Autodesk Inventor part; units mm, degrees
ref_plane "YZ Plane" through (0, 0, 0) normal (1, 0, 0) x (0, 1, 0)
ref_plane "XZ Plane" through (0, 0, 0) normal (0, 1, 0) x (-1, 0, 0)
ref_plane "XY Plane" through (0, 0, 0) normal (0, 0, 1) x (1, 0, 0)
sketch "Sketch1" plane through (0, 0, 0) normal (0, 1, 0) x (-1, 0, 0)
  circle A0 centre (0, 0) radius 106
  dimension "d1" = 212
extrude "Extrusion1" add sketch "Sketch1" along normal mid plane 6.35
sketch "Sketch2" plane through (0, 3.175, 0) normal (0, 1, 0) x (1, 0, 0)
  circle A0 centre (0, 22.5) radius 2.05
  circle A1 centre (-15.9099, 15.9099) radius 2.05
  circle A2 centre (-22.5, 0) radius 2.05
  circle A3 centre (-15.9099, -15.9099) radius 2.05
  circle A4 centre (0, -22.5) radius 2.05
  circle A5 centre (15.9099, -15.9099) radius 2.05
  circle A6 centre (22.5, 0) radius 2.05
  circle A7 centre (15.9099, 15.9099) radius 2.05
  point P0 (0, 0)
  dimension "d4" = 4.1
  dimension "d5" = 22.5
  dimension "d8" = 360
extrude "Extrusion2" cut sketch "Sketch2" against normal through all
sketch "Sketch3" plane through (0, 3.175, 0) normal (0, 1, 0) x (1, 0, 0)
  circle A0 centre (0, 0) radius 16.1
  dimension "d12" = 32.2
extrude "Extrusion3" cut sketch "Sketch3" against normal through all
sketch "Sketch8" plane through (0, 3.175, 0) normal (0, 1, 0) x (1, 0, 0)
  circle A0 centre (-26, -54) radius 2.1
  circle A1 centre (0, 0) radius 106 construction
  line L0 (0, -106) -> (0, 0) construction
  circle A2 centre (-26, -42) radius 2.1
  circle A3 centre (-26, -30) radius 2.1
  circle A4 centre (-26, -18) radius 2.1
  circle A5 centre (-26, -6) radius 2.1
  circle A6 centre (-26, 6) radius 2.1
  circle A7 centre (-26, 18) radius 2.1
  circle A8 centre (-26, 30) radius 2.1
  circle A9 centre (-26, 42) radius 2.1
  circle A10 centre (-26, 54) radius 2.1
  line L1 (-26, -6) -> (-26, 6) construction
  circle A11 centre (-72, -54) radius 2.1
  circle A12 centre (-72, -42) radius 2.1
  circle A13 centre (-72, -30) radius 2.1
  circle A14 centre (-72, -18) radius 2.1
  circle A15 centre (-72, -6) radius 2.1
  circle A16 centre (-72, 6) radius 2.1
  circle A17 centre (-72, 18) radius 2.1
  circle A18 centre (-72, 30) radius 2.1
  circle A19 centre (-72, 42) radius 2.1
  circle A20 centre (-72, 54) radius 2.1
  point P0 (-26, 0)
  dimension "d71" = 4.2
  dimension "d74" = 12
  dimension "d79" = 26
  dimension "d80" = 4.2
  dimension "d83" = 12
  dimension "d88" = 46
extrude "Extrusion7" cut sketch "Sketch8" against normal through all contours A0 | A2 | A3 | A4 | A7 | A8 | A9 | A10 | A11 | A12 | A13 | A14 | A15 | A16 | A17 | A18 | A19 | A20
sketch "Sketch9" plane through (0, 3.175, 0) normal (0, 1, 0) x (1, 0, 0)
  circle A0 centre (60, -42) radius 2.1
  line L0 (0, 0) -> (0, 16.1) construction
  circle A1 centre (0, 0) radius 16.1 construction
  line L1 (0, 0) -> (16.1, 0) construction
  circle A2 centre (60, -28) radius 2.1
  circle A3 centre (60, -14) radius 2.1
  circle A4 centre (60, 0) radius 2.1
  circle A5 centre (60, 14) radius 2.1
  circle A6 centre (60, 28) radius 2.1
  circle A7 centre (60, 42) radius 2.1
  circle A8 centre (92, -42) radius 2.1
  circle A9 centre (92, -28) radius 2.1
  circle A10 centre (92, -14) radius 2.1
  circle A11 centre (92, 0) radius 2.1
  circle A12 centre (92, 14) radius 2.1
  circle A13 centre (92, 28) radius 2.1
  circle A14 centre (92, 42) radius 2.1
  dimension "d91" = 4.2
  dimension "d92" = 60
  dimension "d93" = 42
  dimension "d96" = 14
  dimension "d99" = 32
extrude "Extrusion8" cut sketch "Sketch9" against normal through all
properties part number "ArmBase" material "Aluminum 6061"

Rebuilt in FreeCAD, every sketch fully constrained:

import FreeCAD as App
import Part
import Sketcher
Q = App.Units.Quantity

doc = App.newDocument("Part")
body = doc.addObject("PartDesign::Body", "Body")

# Sketch on XZ plane
sketch1 = body.newObject("Sketcher::SketchObject", "Sketch")
sketch1.AttachmentSupport = (doc.getObject("XZ_Plane"), [""])
sketch1.MapMode = "FlatFace"
sketch1.addGeometry(Part.Circle(App.Vector(0, 0, 0), App.Vector(0, 0, 1), 106), False)
sketch1.addConstraint(Sketcher.Constraint("Coincident", 0, 3, -1, 1))
sketch1.addConstraint(Sketcher.Constraint("Diameter", 0, Q("212 mm")))
pad1 = body.newObject("PartDesign::Pad", "Pad")
pad1.Profile = sketch1
pad1.Length = 6.35
pad1.Midplane = True

# Sketch on XZ plane
sketch2 = body.newObject("Sketcher::SketchObject", "Sketch001")
sketch2.AttachmentSupport = (doc.getObject("XZ_Plane"), [""])
sketch2.MapMode = "FlatFace"
sketch2.AttachmentOffset = App.Placement(App.Vector(0, 0, -3.175), App.Rotation())
sketch2.addGeometry(Part.Circle(App.Vector(0, -22.5, 0), App.Vector(0, 0, 1), 2), False)
sketch2.addGeometry(Part.Circle(App.Vector(-15.9, -15.9, 0), App.Vector(0, 0, 1), 2), False)
sketch2.addGeometry(Part.Circle(App.Vector(-22.5, 0, 0), App.Vector(0, 0, 1), 2), False)
sketch2.addGeometry(Part.Circle(App.Vector(-15.9, 15.9, 0), App.Vector(0, 0, 1), 2), False)
sketch2.addGeometry(Part.Circle(App.Vector(0, 22.5, 0), App.Vector(0, 0, 1), 2), False)
sketch2.addGeometry(Part.Circle(App.Vector(15.9, 15.9, 0), App.Vector(0, 0, 1), 2), False)
sketch2.addGeometry(Part.Circle(App.Vector(22.5, 0, 0), App.Vector(0, 0, 1), 2), False)
sketch2.addGeometry(Part.Circle(App.Vector(15.9, -15.9, 0), App.Vector(0, 0, 1), 2), False)
sketch2.addConstraint(Sketcher.Constraint("Equal", 0, 1))
sketch2.addConstraint(Sketcher.Constraint("Equal", 1, 2))
sketch2.addConstraint(Sketcher.Constraint("Equal", 2, 3))
sketch2.addConstraint(Sketcher.Constraint("Equal", 3, 4))
sketch2.addConstraint(Sketcher.Constraint("Equal", 4, 5))
sketch2.addConstraint(Sketcher.Constraint("Equal", 5, 6))
sketch2.addConstraint(Sketcher.Constraint("Equal", 6, 7))
sketch2.addConstraint(Sketcher.Constraint("Symmetric", 0, 3, 4, 3, -1, 1))
sketch2.addConstraint(Sketcher.Constraint("Symmetric", 1, 3, 5, 3, -1, 1))
sketch2.addConstraint(Sketcher.Constraint("Symmetric", 2, 3, 6, 3, -1, 1))
sketch2.addConstraint(Sketcher.Constraint("Symmetric", 3, 3, 7, 3, -1, 1))
sketch2.addConstraint(Sketcher.Constraint("Symmetric", 3, 3, 5, 3, -2))
sketch2.addConstraint(Sketcher.Constraint("PointOnObject", 0, 3, -2))
sketch2.addConstraint(Sketcher.Constraint("PointOnObject", 2, 3, -1))
sketch2.addConstraint(Sketcher.Constraint("Diameter", 0, Q("4.1 mm")))
sketch2.addConstraint(Sketcher.Constraint("DistanceY", 0, 3, -1, 1, Q("22.5 mm")))
sketch2.addConstraint(Sketcher.Constraint("DistanceX", 2, 3, -1, 1, Q("22.5 mm")))
sketch2.addConstraint(Sketcher.Constraint("DistanceX", 1, 3, -1, 1, Q("15.91 mm")))
sketch2.addConstraint(Sketcher.Constraint("DistanceY", 1, 3, -1, 1, Q("15.91 mm")))
pocket1 = body.newObject("PartDesign::Pocket", "Pocket")
pocket1.Profile = sketch2
pocket1.Type = "ThroughAll"
pocket1.Reversed = True

# Sketch on XZ plane
sketch3 = body.newObject("Sketcher::SketchObject", "Sketch002")
sketch3.AttachmentSupport = (doc.getObject("XZ_Plane"), [""])
sketch3.MapMode = "FlatFace"
sketch3.AttachmentOffset = App.Placement(App.Vector(0, 0, -3.175), App.Rotation())
sketch3.addGeometry(Part.Circle(App.Vector(0, 0, 0), App.Vector(0, 0, 1), 16), False)
sketch3.addConstraint(Sketcher.Constraint("Coincident", 0, 3, -1, 1))
sketch3.addConstraint(Sketcher.Constraint("Diameter", 0, Q("32.2 mm")))
pocket2 = body.newObject("PartDesign::Pocket", "Pocket001")
pocket2.Profile = sketch3
pocket2.Type = "ThroughAll"
pocket2.Reversed = True

# Sketch on XZ plane
sketch4 = body.newObject("Sketcher::SketchObject", "Sketch003")
sketch4.AttachmentSupport = (doc.getObject("XZ_Plane"), [""])
sketch4.MapMode = "FlatFace"
sketch4.AttachmentOffset = App.Placement(App.Vector(0, 0, -3.175), App.Rotation())
sketch4.addGeometry(Part.Circle(App.Vector(-26, 54, 0), App.Vector(0, 0, 1), 2.1), False)
sketch4.addGeometry(Part.Circle(App.Vector(-26, 42, 0), App.Vector(0, 0, 1), 2.1), False)
sketch4.addGeometry(Part.Circle(App.Vector(-26, 30, 0), App.Vector(0, 0, 1), 2.1), False)
sketch4.addGeometry(Part.Circle(App.Vector(-26, 18, 0), App.Vector(0, 0, 1), 2.1), False)
sketch4.addGeometry(Part.Circle(App.Vector(-26, -18, 0), App.Vector(0, 0, 1), 2.1), False)
sketch4.addGeometry(Part.Circle(App.Vector(-26, -30, 0), App.Vector(0, 0, 1), 2.1), False)
sketch4.addGeometry(Part.Circle(App.Vector(-26, -42, 0), App.Vector(0, 0, 1), 2.1), False)
sketch4.addGeometry(Part.Circle(App.Vector(-26, -54, 0), App.Vector(0, 0, 1), 2.1), False)
sketch4.addGeometry(Part.Circle(App.Vector(-72, 54, 0), App.Vector(0, 0, 1), 2.1), False)
sketch4.addGeometry(Part.Circle(App.Vector(-72, 42, 0), App.Vector(0, 0, 1), 2.1), False)
sketch4.addGeometry(Part.Circle(App.Vector(-72, 30, 0), App.Vector(0, 0, 1), 2.1), False)
sketch4.addGeometry(Part.Circle(App.Vector(-72, 18, 0), App.Vector(0, 0, 1), 2.1), False)
sketch4.addGeometry(Part.Circle(App.Vector(-72, 6, 0), App.Vector(0, 0, 1), 2.1), False)
sketch4.addGeometry(Part.Circle(App.Vector(-72, -6, 0), App.Vector(0, 0, 1), 2.1), False)
sketch4.addGeometry(Part.Circle(App.Vector(-72, -18, 0), App.Vector(0, 0, 1), 2.1), False)
sketch4.addGeometry(Part.Circle(App.Vector(-72, -30, 0), App.Vector(0, 0, 1), 2.1), False)
sketch4.addGeometry(Part.Circle(App.Vector(-72, -42, 0), App.Vector(0, 0, 1), 2.1), False)
sketch4.addGeometry(Part.Circle(App.Vector(-72, -54, 0), App.Vector(0, 0, 1), 2.1), False)
sketch4.addConstraint(Sketcher.Constraint("Equal", 0, 1))
sketch4.addConstraint(Sketcher.Constraint("Equal", 1, 2))
sketch4.addConstraint(Sketcher.Constraint("Equal", 2, 3))
sketch4.addConstraint(Sketcher.Constraint("Equal", 3, 4))
sketch4.addConstraint(Sketcher.Constraint("Equal", 4, 5))
sketch4.addConstraint(Sketcher.Constraint("Equal", 5, 6))
sketch4.addConstraint(Sketcher.Constraint("Equal", 6, 7))
sketch4.addConstraint(Sketcher.Constraint("Equal", 7, 8))
sketch4.addConstraint(Sketcher.Constraint("Equal", 8, 9))
sketch4.addConstraint(Sketcher.Constraint("Equal", 9, 10))
sketch4.addConstraint(Sketcher.Constraint("Equal", 10, 11))
sketch4.addConstraint(Sketcher.Constraint("Equal", 11, 12))
sketch4.addConstraint(Sketcher.Constraint("Equal", 12, 13))
sketch4.addConstraint(Sketcher.Constraint("Equal", 13, 14))
sketch4.addConstraint(Sketcher.Constraint("Equal", 14, 15))
sketch4.addConstraint(Sketcher.Constraint("Equal", 15, 16))
sketch4.addConstraint(Sketcher.Constraint("Equal", 16, 17))
sketch4.addConstraint(Sketcher.Constraint("Symmetric", 3, 3, 4, 3, -1))
sketch4.addConstraint(Sketcher.Constraint("Symmetric", 2, 3, 5, 3, -1))
sketch4.addConstraint(Sketcher.Constraint("Symmetric", 1, 3, 6, 3, -1))
sketch4.addConstraint(Sketcher.Constraint("Symmetric", 0, 3, 7, 3, -1))
sketch4.addConstraint(Sketcher.Constraint("Symmetric", 12, 3, 13, 3, -1))
sketch4.addConstraint(Sketcher.Constraint("Symmetric", 11, 3, 14, 3, -1))
sketch4.addConstraint(Sketcher.Constraint("Symmetric", 10, 3, 15, 3, -1))
sketch4.addConstraint(Sketcher.Constraint("Symmetric", 9, 3, 16, 3, -1))
sketch4.addConstraint(Sketcher.Constraint("Symmetric", 8, 3, 17, 3, -1))
sketch4.addConstraint(Sketcher.Constraint("Horizontal", 0, 3, 8, 3))
sketch4.addConstraint(Sketcher.Constraint("Horizontal", 1, 3, 9, 3))
sketch4.addConstraint(Sketcher.Constraint("Horizontal", 2, 3, 10, 3))
sketch4.addConstraint(Sketcher.Constraint("Horizontal", 3, 3, 11, 3))
sketch4.addConstraint(Sketcher.Constraint("Vertical", 0, 3, 1, 3))
sketch4.addConstraint(Sketcher.Constraint("Vertical", 1, 3, 2, 3))
sketch4.addConstraint(Sketcher.Constraint("Vertical", 2, 3, 3, 3))
sketch4.addConstraint(Sketcher.Constraint("Vertical", 8, 3, 9, 3))
sketch4.addConstraint(Sketcher.Constraint("Vertical", 9, 3, 10, 3))
sketch4.addConstraint(Sketcher.Constraint("Vertical", 10, 3, 11, 3))
sketch4.addConstraint(Sketcher.Constraint("Vertical", 11, 3, 12, 3))
sketch4.addConstraint(Sketcher.Constraint("Diameter", 0, Q("4.2 mm")))
sketch4.addConstraint(Sketcher.Constraint("DistanceX", 0, 3, -1, 1, Q("26 mm")))
sketch4.addConstraint(Sketcher.Constraint("DistanceY", 1, 3, 0, 3, Q("12 mm")))
sketch4.addConstraint(Sketcher.Constraint("DistanceY", 2, 3, 1, 3, Q("12 mm")))
sketch4.addConstraint(Sketcher.Constraint("DistanceY", 3, 3, 2, 3, Q("12 mm")))
sketch4.addConstraint(Sketcher.Constraint("DistanceX", 8, 3, 0, 3, Q("46 mm")))
sketch4.addConstraint(Sketcher.Constraint("DistanceY", 12, 3, 11, 3, Q("12 mm")))
sketch4.addConstraint(Sketcher.Constraint("DistanceY", 13, 3, 12, 3, Q("12 mm")))
pocket3 = body.newObject("PartDesign::Pocket", "Pocket002")
pocket3.Profile = sketch4
pocket3.Type = "ThroughAll"
pocket3.Reversed = True

# Sketch on XZ plane
sketch5 = body.newObject("Sketcher::SketchObject", "Sketch004")
sketch5.AttachmentSupport = (doc.getObject("XZ_Plane"), [""])
sketch5.MapMode = "FlatFace"
sketch5.AttachmentOffset = App.Placement(App.Vector(0, 0, -3.175), App.Rotation())
sketch5.addGeometry(Part.Circle(App.Vector(60, 42, 0), App.Vector(0, 0, 1), 2.1), False)
sketch5.addGeometry(Part.Circle(App.Vector(60, 28, 0), App.Vector(0, 0, 1), 2.1), False)
sketch5.addGeometry(Part.Circle(App.Vector(60, 14, 0), App.Vector(0, 0, 1), 2.1), False)
sketch5.addGeometry(Part.Circle(App.Vector(60, 0, 0), App.Vector(0, 0, 1), 2.1), False)
sketch5.addGeometry(Part.Circle(App.Vector(60, -14, 0), App.Vector(0, 0, 1), 2.1), False)
sketch5.addGeometry(Part.Circle(App.Vector(60, -28, 0), App.Vector(0, 0, 1), 2.1), False)
sketch5.addGeometry(Part.Circle(App.Vector(60, -42, 0), App.Vector(0, 0, 1), 2.1), False)
sketch5.addGeometry(Part.Circle(App.Vector(92, 42, 0), App.Vector(0, 0, 1), 2.1), False)
sketch5.addGeometry(Part.Circle(App.Vector(92, 28, 0), App.Vector(0, 0, 1), 2.1), False)
sketch5.addGeometry(Part.Circle(App.Vector(92, 14, 0), App.Vector(0, 0, 1), 2.1), False)
sketch5.addGeometry(Part.Circle(App.Vector(92, 0, 0), App.Vector(0, 0, 1), 2.1), False)
sketch5.addGeometry(Part.Circle(App.Vector(92, -14, 0), App.Vector(0, 0, 1), 2.1), False)
sketch5.addGeometry(Part.Circle(App.Vector(92, -28, 0), App.Vector(0, 0, 1), 2.1), False)
sketch5.addGeometry(Part.Circle(App.Vector(92, -42, 0), App.Vector(0, 0, 1), 2.1), False)
sketch5.addConstraint(Sketcher.Constraint("Equal", 0, 1))
sketch5.addConstraint(Sketcher.Constraint("Equal", 1, 2))
sketch5.addConstraint(Sketcher.Constraint("Equal", 2, 3))
sketch5.addConstraint(Sketcher.Constraint("Equal", 3, 4))
sketch5.addConstraint(Sketcher.Constraint("Equal", 4, 5))
sketch5.addConstraint(Sketcher.Constraint("Equal", 5, 6))
sketch5.addConstraint(Sketcher.Constraint("Equal", 6, 7))
sketch5.addConstraint(Sketcher.Constraint("Equal", 7, 8))
sketch5.addConstraint(Sketcher.Constraint("Equal", 8, 9))
sketch5.addConstraint(Sketcher.Constraint("Equal", 9, 10))
sketch5.addConstraint(Sketcher.Constraint("Equal", 10, 11))
sketch5.addConstraint(Sketcher.Constraint("Equal", 11, 12))
sketch5.addConstraint(Sketcher.Constraint("Equal", 12, 13))
sketch5.addConstraint(Sketcher.Constraint("Symmetric", 2, 3, 4, 3, -1))
sketch5.addConstraint(Sketcher.Constraint("Symmetric", 1, 3, 5, 3, -1))
sketch5.addConstraint(Sketcher.Constraint("Symmetric", 0, 3, 6, 3, -1))
sketch5.addConstraint(Sketcher.Constraint("Symmetric", 9, 3, 11, 3, -1))
sketch5.addConstraint(Sketcher.Constraint("Symmetric", 8, 3, 12, 3, -1))
sketch5.addConstraint(Sketcher.Constraint("Symmetric", 7, 3, 13, 3, -1))
sketch5.addConstraint(Sketcher.Constraint("PointOnObject", 3, 3, -1))
sketch5.addConstraint(Sketcher.Constraint("PointOnObject", 10, 3, -1))
sketch5.addConstraint(Sketcher.Constraint("Horizontal", 0, 3, 7, 3))
sketch5.addConstraint(Sketcher.Constraint("Horizontal", 1, 3, 8, 3))
sketch5.addConstraint(Sketcher.Constraint("Horizontal", 2, 3, 9, 3))
sketch5.addConstraint(Sketcher.Constraint("Vertical", 0, 3, 1, 3))
sketch5.addConstraint(Sketcher.Constraint("Vertical", 1, 3, 2, 3))
sketch5.addConstraint(Sketcher.Constraint("Vertical", 2, 3, 3, 3))
sketch5.addConstraint(Sketcher.Constraint("Vertical", 7, 3, 8, 3))
sketch5.addConstraint(Sketcher.Constraint("Vertical", 8, 3, 9, 3))
sketch5.addConstraint(Sketcher.Constraint("Vertical", 9, 3, 10, 3))
sketch5.addConstraint(Sketcher.Constraint("Diameter", 0, Q("4.2 mm")))
sketch5.addConstraint(Sketcher.Constraint("DistanceX", -1, 1, 0, 3, Q("60 mm")))
sketch5.addConstraint(Sketcher.Constraint("DistanceY", -1, 1, 0, 3, Q("42 mm")))
sketch5.addConstraint(Sketcher.Constraint("DistanceY", -1, 1, 2, 3, Q("14 mm")))
sketch5.addConstraint(Sketcher.Constraint("DistanceY", 1, 3, 0, 3, Q("14 mm")))
sketch5.addConstraint(Sketcher.Constraint("DistanceX", 0, 3, 7, 3, Q("32 mm")))
pocket4 = body.newObject("PartDesign::Pocket", "Pocket003")
pocket4.Profile = sketch5
pocket4.Type = "ThroughAll"
pocket4.Reversed = True

doc.recompute()
